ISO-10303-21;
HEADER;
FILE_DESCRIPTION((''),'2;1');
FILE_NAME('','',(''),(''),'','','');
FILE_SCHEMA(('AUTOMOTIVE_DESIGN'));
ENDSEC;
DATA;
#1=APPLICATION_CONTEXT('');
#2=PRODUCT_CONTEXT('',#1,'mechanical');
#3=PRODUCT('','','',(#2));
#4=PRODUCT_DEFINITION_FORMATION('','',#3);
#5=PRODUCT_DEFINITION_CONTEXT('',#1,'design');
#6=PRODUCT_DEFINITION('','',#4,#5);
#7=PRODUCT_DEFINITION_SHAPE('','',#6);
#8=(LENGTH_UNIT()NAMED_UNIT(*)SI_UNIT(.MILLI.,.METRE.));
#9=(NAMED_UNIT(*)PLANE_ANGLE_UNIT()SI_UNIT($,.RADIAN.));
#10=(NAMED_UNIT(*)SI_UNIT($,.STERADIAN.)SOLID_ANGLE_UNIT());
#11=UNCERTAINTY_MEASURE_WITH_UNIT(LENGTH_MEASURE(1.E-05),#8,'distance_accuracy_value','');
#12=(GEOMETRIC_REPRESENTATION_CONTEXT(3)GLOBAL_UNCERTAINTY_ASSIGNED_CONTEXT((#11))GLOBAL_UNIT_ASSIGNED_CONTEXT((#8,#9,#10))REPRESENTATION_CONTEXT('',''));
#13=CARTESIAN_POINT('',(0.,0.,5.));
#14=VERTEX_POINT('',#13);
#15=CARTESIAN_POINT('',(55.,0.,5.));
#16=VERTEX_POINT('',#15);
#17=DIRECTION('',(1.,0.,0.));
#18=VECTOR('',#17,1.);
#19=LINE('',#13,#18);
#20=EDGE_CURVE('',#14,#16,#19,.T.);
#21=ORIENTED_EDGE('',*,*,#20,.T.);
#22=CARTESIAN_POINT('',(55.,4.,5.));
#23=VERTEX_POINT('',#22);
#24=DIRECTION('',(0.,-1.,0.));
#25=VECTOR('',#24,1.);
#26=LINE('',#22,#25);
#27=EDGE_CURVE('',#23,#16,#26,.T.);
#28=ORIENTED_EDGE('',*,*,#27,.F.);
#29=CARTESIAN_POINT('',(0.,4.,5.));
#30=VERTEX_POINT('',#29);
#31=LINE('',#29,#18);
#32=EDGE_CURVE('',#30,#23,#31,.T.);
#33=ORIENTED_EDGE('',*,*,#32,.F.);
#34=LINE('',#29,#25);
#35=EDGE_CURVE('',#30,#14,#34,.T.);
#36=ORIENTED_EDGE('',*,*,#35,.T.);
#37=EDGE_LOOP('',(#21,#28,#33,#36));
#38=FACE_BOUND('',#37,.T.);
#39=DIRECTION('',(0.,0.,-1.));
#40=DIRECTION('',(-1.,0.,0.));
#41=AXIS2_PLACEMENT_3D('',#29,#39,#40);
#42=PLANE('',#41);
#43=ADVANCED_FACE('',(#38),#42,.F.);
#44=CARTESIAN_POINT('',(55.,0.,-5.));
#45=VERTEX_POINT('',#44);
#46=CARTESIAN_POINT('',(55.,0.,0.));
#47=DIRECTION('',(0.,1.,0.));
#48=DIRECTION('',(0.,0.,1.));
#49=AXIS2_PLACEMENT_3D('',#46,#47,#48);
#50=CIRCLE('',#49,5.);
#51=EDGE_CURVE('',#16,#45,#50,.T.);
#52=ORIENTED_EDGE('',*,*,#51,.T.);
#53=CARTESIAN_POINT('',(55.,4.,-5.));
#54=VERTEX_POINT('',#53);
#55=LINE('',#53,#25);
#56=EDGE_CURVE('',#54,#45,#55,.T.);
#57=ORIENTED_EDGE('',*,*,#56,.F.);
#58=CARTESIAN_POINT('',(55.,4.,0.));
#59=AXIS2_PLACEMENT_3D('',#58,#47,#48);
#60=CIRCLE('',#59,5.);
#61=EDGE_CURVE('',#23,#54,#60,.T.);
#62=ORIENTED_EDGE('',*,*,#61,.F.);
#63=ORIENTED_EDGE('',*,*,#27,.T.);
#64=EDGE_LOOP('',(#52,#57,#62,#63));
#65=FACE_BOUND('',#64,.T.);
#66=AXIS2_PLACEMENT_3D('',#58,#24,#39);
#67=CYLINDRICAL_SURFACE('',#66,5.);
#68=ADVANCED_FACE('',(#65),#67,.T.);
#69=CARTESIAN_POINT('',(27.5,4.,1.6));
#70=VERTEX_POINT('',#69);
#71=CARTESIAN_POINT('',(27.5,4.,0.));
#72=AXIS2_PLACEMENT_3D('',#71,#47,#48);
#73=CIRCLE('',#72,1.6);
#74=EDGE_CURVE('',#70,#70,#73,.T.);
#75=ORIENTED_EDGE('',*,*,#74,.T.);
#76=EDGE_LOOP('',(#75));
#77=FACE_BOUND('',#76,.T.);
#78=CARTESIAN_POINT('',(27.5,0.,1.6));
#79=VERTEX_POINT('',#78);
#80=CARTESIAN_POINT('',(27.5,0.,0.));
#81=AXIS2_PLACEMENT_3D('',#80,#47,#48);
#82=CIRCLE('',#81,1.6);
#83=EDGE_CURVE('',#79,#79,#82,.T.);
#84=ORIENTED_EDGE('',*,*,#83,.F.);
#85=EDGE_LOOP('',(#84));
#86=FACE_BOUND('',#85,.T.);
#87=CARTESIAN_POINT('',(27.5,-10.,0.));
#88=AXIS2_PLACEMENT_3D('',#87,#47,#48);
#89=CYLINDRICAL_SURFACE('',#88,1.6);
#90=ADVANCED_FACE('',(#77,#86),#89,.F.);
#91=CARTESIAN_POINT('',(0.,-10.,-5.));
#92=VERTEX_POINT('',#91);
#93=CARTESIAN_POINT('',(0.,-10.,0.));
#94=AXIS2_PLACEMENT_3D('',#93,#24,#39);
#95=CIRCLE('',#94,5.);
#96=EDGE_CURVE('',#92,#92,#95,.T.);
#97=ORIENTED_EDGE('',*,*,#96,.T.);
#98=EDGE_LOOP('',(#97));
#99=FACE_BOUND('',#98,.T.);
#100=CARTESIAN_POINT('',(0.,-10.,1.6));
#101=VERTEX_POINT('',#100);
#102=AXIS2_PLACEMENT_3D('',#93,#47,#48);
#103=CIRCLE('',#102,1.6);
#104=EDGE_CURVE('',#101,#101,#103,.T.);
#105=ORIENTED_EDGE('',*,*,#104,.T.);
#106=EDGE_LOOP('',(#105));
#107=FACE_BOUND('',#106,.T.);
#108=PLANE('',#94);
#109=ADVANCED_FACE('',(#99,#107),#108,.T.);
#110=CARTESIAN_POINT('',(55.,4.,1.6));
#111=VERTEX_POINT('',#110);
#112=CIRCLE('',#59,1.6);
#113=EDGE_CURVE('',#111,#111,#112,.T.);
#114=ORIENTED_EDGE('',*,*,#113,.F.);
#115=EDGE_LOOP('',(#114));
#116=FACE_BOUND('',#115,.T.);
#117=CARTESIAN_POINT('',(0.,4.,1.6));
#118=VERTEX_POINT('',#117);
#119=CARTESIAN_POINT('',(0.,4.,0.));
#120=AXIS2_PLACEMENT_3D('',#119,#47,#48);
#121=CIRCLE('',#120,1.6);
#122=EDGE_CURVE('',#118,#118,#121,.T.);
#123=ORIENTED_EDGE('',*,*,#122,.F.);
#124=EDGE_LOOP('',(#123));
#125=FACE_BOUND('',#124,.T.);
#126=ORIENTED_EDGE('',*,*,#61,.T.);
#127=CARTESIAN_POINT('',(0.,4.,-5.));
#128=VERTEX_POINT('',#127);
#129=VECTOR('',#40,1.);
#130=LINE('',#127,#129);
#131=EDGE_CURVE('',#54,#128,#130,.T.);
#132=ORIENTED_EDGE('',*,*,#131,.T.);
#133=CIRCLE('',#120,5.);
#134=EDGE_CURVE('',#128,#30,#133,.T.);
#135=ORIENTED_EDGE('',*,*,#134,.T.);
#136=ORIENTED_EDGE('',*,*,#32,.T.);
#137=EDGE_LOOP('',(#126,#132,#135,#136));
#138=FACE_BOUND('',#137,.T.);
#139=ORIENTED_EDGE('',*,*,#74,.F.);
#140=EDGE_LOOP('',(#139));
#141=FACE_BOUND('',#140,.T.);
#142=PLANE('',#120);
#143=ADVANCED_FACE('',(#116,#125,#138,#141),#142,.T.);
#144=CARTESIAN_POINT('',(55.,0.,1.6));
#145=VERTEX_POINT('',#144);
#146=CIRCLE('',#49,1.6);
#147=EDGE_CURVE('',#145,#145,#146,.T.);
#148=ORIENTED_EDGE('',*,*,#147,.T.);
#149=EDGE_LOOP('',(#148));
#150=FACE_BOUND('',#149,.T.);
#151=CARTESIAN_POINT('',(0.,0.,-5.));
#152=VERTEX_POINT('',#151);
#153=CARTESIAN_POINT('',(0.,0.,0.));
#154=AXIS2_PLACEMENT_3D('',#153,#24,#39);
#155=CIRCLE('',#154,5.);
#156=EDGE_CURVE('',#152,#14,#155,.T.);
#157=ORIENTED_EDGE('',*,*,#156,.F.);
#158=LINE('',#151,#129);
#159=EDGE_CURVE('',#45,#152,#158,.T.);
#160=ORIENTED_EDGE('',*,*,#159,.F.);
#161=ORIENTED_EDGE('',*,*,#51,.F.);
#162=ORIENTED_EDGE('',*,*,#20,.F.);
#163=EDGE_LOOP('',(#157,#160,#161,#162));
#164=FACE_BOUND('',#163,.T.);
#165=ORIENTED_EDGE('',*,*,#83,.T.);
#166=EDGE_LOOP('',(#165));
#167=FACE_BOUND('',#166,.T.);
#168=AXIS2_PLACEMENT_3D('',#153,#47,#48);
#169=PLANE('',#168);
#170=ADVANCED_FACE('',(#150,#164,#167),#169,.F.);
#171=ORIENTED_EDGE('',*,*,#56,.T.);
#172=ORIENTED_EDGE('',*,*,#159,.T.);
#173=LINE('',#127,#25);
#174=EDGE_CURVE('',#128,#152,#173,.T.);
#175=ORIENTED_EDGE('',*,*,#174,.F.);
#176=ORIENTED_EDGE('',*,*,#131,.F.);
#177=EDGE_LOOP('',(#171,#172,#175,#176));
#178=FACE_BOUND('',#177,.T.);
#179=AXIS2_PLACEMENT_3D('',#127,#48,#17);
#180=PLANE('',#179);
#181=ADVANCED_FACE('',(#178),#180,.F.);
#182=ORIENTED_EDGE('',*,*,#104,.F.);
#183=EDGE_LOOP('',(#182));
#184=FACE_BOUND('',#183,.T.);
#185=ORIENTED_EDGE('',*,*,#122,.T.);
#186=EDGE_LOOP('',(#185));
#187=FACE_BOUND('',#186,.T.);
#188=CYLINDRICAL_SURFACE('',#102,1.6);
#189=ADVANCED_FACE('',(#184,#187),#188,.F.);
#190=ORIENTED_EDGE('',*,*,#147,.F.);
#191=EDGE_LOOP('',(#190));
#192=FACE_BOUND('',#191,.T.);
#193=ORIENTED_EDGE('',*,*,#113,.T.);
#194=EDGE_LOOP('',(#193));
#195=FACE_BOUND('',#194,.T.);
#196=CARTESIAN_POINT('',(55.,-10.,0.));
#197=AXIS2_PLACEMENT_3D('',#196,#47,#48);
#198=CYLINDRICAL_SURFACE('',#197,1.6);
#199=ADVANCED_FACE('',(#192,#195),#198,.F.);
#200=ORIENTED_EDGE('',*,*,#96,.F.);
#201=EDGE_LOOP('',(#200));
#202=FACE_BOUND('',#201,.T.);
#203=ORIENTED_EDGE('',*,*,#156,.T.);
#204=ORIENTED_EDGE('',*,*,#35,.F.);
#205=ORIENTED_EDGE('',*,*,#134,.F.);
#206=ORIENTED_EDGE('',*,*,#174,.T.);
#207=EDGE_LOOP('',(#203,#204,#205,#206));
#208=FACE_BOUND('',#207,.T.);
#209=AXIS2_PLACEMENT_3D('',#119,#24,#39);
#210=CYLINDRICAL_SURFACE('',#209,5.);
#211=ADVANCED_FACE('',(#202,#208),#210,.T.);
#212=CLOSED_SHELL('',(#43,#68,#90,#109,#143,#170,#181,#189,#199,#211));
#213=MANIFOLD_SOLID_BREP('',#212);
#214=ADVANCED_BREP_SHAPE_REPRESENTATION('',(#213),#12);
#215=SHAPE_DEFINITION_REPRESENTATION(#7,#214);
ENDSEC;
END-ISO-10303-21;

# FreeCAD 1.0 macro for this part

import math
import FreeCAD as App
import Part
import Sketcher
Q = App.Units.Quantity

doc = App.newDocument("Part")
body = doc.addObject("PartDesign::Body", "Body")

sketch1 = doc.addObject("Sketcher::SketchObject", "Sketch")
body.addObject(sketch1)
sketch1.AttachmentSupport = (doc.XZ_Plane, [""])
sketch1.MapMode = "FlatFace"
sketch1.addGeometry([
    Part.LineSegment(App.Vector(55, -5, 0), App.Vector(0, -5, 0)),
    Part.ArcOfCircle(Part.Circle(App.Vector(0, 0, 0), App.Vector(0, 0, 1), 5), math.radians(90), math.radians(270)),
    Part.LineSegment(App.Vector(0, 5, 0), App.Vector(55, 5, 0)),
    Part.ArcOfCircle(Part.Circle(App.Vector(55, 0, 0), App.Vector(0, 0, 1), 5), math.radians(-90), math.radians(90)),
], False)
sketch1.addConstraint([
    Sketcher.Constraint("Tangent", 0, 2, 1, 2),
    Sketcher.Constraint("Tangent", 1, 1, 2, 1),
    Sketcher.Constraint("Tangent", 2, 2, 3, 2),
    Sketcher.Constraint("Tangent", 3, 1, 0, 1),
    Sketcher.Constraint("Horizontal", 0),
    Sketcher.Constraint("Horizontal", 2),
    Sketcher.Constraint("Coincident", 1, 3, -1, 1),
    Sketcher.Constraint("Radius", 1, Q("5 mm")),
    Sketcher.Constraint("DistanceX", 0, 2, 0, 1, Q("55 mm")),
])
pad1 = doc.addObject("PartDesign::Pad", "Pad")
body.addObject(pad1)
pad1.Profile = sketch1
pad1.Length = 4
pad1.Reversed = True

sketch2 = doc.addObject("Sketcher::SketchObject", "Sketch001")
body.addObject(sketch2)
sketch2.AttachmentSupport = (doc.XZ_Plane, [""])
sketch2.MapMode = "FlatFace"
sketch2.addGeometry(Part.Circle(App.Vector(0, 0, 0), App.Vector(0, 0, 1), 5), False)
sketch2.addConstraint([
    Sketcher.Constraint("Coincident", 0, 3, -1, 1),
    Sketcher.Constraint("Diameter", 0, Q("10 mm")),
])
pad2 = doc.addObject("PartDesign::Pad", "Pad001")
body.addObject(pad2)
pad2.Profile = sketch2
pad2.Length = 10

sketch3 = doc.addObject("Sketcher::SketchObject", "Sketch002")
body.addObject(sketch3)
sketch3.AttachmentSupport = (doc.XZ_Plane, [""])
sketch3.MapMode = "FlatFace"
sketch3.AttachmentOffset = App.Placement(App.Vector(0, 0, -4), App.Rotation())
sketch3.addGeometry([
    Part.Circle(App.Vector(0, 0, 0), App.Vector(0, 0, 1), 1.6),
    Part.Circle(App.Vector(27.5, 0, 0), App.Vector(0, 0, 1), 1.6),
    Part.Circle(App.Vector(55, 0, 0), App.Vector(0, 0, 1), 1.6),
], False)
sketch3.addConstraint([
    Sketcher.Constraint("Coincident", 0, 3, -1, 1),
    Sketcher.Constraint("Equal", 0, 1),
    Sketcher.Constraint("Equal", 1, 2),
    Sketcher.Constraint("PointOnObject", 1, 3, -1),
    Sketcher.Constraint("PointOnObject", 2, 3, -1),
    Sketcher.Constraint("Diameter", 0, Q("3.2 mm")),
    Sketcher.Constraint("DistanceX", -1, 1, 2, 3, Q("55 mm")),
    Sketcher.Constraint("DistanceX", -1, 1, 1, 3, Q("27.5 mm")),
])
pocket1 = doc.addObject("PartDesign::Pocket", "Pocket")
body.addObject(pocket1)
pocket1.Profile = sketch3
pocket1.Type = "ThroughAll"
pocket1.Reversed = True

doc.recompute()
